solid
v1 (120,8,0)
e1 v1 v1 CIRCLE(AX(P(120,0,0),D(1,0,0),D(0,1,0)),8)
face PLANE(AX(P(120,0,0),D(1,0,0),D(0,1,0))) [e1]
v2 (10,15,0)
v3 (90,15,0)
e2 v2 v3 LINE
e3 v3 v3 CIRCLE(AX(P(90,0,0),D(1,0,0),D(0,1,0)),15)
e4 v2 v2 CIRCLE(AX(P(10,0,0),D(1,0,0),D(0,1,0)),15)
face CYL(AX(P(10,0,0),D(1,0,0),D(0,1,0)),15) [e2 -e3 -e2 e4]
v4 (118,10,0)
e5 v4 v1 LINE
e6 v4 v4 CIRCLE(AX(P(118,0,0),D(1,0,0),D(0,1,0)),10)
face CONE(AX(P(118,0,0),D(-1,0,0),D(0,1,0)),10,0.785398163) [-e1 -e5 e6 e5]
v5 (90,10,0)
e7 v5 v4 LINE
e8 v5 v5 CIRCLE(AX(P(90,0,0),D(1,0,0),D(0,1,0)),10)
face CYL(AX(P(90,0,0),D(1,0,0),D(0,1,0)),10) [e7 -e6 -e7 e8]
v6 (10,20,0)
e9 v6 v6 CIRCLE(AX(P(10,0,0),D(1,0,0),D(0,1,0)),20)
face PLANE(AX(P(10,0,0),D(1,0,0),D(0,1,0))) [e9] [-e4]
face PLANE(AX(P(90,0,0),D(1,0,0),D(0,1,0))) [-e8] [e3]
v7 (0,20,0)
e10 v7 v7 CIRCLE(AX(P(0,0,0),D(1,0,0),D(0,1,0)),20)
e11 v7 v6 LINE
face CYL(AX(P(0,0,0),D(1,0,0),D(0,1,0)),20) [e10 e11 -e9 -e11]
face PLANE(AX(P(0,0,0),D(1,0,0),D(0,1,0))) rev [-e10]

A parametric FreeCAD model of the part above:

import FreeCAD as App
import Part
import Sketcher
from FreeCAD import Vector
Q = App.Units.Quantity


def edges_at(feature, points):
    """Names of the edges that pass closest to the given points."""
    edges = feature.Shape.Edges
    near = lambda p: min(range(len(edges)), key=lambda i: edges[i].distToShape(Part.Vertex(*p))[0])
    return sorted({f"Edge{near(p) + 1}" for p in points})

doc = App.newDocument("Part")
body = doc.addObject("PartDesign::Body", "Body")

sketch1 = body.newObject("Sketcher::SketchObject", "Sketch")
sketch1.AttachmentSupport = (doc.getObject("XY_Plane"), [""])
sketch1.MapMode = "FlatFace"
sketch1.addGeometry([
    Part.LineSegment(Vector(0, 20, 0), Vector(0, 0, 0)),
    Part.LineSegment(Vector(0, 0, 0), Vector(120, 0, 0)),
    Part.LineSegment(Vector(120, 0, 0), Vector(120, 10, 0)),
    Part.LineSegment(Vector(120, 10, 0), Vector(90, 10, 0)),
    Part.LineSegment(Vector(90, 10, 0), Vector(90, 15, 0)),
    Part.LineSegment(Vector(90, 15, 0), Vector(10, 15, 0)),
    Part.LineSegment(Vector(10, 15, 0), Vector(10, 20, 0)),
    Part.LineSegment(Vector(10, 20, 0), Vector(0, 20, 0)),
], False)
sketch1.addConstraint([
    Sketcher.Constraint("Coincident", 0, 2, 1, 1),
    Sketcher.Constraint("Coincident", 1, 2, 2, 1),
    Sketcher.Constraint("Coincident", 2, 2, 3, 1),
    Sketcher.Constraint("Coincident", 3, 2, 4, 1),
    Sketcher.Constraint("Coincident", 4, 2, 5, 1),
    Sketcher.Constraint("Coincident", 5, 2, 6, 1),
    Sketcher.Constraint("Coincident", 6, 2, 7, 1),
    Sketcher.Constraint("Coincident", 7, 2, 0, 1),
    Sketcher.Constraint("Vertical", 0),
    Sketcher.Constraint("Horizontal", 1),
    Sketcher.Constraint("Vertical", 2),
    Sketcher.Constraint("Horizontal", 3),
    Sketcher.Constraint("Vertical", 4),
    Sketcher.Constraint("Horizontal", 5),
    Sketcher.Constraint("Vertical", 6),
    Sketcher.Constraint("Horizontal", 7),
    Sketcher.Constraint("Coincident", 0, 2, -1, 1),
    Sketcher.Constraint("Equal", 7, 2),
    Sketcher.Constraint("Equal", 4, 6),
    Sketcher.Constraint("DistanceX", 3, 2, 3, 1, Q("30 mm")),
    Sketcher.Constraint("DistanceY", 0, 2, 0, 1, Q("20 mm")),
    Sketcher.Constraint("DistanceX", 1, 1, 1, 2, Q("120 mm")),
    Sketcher.Constraint("DistanceX", 5, 2, 5, 1, Q("80 mm")),
])
revolution = body.newObject("PartDesign::Revolution", "Revolution")
revolution.Profile = sketch1
revolution.ReferenceAxis = (sketch1, ["H_Axis"])
revolution.Angle = 360
doc.recompute()

chamfer = body.newObject("PartDesign::Chamfer", "Chamfer")
chamfer.Base = (revolution, edges_at(revolution, [(120, -10, 0)]))
chamfer.Size = 2

doc.recompute()
